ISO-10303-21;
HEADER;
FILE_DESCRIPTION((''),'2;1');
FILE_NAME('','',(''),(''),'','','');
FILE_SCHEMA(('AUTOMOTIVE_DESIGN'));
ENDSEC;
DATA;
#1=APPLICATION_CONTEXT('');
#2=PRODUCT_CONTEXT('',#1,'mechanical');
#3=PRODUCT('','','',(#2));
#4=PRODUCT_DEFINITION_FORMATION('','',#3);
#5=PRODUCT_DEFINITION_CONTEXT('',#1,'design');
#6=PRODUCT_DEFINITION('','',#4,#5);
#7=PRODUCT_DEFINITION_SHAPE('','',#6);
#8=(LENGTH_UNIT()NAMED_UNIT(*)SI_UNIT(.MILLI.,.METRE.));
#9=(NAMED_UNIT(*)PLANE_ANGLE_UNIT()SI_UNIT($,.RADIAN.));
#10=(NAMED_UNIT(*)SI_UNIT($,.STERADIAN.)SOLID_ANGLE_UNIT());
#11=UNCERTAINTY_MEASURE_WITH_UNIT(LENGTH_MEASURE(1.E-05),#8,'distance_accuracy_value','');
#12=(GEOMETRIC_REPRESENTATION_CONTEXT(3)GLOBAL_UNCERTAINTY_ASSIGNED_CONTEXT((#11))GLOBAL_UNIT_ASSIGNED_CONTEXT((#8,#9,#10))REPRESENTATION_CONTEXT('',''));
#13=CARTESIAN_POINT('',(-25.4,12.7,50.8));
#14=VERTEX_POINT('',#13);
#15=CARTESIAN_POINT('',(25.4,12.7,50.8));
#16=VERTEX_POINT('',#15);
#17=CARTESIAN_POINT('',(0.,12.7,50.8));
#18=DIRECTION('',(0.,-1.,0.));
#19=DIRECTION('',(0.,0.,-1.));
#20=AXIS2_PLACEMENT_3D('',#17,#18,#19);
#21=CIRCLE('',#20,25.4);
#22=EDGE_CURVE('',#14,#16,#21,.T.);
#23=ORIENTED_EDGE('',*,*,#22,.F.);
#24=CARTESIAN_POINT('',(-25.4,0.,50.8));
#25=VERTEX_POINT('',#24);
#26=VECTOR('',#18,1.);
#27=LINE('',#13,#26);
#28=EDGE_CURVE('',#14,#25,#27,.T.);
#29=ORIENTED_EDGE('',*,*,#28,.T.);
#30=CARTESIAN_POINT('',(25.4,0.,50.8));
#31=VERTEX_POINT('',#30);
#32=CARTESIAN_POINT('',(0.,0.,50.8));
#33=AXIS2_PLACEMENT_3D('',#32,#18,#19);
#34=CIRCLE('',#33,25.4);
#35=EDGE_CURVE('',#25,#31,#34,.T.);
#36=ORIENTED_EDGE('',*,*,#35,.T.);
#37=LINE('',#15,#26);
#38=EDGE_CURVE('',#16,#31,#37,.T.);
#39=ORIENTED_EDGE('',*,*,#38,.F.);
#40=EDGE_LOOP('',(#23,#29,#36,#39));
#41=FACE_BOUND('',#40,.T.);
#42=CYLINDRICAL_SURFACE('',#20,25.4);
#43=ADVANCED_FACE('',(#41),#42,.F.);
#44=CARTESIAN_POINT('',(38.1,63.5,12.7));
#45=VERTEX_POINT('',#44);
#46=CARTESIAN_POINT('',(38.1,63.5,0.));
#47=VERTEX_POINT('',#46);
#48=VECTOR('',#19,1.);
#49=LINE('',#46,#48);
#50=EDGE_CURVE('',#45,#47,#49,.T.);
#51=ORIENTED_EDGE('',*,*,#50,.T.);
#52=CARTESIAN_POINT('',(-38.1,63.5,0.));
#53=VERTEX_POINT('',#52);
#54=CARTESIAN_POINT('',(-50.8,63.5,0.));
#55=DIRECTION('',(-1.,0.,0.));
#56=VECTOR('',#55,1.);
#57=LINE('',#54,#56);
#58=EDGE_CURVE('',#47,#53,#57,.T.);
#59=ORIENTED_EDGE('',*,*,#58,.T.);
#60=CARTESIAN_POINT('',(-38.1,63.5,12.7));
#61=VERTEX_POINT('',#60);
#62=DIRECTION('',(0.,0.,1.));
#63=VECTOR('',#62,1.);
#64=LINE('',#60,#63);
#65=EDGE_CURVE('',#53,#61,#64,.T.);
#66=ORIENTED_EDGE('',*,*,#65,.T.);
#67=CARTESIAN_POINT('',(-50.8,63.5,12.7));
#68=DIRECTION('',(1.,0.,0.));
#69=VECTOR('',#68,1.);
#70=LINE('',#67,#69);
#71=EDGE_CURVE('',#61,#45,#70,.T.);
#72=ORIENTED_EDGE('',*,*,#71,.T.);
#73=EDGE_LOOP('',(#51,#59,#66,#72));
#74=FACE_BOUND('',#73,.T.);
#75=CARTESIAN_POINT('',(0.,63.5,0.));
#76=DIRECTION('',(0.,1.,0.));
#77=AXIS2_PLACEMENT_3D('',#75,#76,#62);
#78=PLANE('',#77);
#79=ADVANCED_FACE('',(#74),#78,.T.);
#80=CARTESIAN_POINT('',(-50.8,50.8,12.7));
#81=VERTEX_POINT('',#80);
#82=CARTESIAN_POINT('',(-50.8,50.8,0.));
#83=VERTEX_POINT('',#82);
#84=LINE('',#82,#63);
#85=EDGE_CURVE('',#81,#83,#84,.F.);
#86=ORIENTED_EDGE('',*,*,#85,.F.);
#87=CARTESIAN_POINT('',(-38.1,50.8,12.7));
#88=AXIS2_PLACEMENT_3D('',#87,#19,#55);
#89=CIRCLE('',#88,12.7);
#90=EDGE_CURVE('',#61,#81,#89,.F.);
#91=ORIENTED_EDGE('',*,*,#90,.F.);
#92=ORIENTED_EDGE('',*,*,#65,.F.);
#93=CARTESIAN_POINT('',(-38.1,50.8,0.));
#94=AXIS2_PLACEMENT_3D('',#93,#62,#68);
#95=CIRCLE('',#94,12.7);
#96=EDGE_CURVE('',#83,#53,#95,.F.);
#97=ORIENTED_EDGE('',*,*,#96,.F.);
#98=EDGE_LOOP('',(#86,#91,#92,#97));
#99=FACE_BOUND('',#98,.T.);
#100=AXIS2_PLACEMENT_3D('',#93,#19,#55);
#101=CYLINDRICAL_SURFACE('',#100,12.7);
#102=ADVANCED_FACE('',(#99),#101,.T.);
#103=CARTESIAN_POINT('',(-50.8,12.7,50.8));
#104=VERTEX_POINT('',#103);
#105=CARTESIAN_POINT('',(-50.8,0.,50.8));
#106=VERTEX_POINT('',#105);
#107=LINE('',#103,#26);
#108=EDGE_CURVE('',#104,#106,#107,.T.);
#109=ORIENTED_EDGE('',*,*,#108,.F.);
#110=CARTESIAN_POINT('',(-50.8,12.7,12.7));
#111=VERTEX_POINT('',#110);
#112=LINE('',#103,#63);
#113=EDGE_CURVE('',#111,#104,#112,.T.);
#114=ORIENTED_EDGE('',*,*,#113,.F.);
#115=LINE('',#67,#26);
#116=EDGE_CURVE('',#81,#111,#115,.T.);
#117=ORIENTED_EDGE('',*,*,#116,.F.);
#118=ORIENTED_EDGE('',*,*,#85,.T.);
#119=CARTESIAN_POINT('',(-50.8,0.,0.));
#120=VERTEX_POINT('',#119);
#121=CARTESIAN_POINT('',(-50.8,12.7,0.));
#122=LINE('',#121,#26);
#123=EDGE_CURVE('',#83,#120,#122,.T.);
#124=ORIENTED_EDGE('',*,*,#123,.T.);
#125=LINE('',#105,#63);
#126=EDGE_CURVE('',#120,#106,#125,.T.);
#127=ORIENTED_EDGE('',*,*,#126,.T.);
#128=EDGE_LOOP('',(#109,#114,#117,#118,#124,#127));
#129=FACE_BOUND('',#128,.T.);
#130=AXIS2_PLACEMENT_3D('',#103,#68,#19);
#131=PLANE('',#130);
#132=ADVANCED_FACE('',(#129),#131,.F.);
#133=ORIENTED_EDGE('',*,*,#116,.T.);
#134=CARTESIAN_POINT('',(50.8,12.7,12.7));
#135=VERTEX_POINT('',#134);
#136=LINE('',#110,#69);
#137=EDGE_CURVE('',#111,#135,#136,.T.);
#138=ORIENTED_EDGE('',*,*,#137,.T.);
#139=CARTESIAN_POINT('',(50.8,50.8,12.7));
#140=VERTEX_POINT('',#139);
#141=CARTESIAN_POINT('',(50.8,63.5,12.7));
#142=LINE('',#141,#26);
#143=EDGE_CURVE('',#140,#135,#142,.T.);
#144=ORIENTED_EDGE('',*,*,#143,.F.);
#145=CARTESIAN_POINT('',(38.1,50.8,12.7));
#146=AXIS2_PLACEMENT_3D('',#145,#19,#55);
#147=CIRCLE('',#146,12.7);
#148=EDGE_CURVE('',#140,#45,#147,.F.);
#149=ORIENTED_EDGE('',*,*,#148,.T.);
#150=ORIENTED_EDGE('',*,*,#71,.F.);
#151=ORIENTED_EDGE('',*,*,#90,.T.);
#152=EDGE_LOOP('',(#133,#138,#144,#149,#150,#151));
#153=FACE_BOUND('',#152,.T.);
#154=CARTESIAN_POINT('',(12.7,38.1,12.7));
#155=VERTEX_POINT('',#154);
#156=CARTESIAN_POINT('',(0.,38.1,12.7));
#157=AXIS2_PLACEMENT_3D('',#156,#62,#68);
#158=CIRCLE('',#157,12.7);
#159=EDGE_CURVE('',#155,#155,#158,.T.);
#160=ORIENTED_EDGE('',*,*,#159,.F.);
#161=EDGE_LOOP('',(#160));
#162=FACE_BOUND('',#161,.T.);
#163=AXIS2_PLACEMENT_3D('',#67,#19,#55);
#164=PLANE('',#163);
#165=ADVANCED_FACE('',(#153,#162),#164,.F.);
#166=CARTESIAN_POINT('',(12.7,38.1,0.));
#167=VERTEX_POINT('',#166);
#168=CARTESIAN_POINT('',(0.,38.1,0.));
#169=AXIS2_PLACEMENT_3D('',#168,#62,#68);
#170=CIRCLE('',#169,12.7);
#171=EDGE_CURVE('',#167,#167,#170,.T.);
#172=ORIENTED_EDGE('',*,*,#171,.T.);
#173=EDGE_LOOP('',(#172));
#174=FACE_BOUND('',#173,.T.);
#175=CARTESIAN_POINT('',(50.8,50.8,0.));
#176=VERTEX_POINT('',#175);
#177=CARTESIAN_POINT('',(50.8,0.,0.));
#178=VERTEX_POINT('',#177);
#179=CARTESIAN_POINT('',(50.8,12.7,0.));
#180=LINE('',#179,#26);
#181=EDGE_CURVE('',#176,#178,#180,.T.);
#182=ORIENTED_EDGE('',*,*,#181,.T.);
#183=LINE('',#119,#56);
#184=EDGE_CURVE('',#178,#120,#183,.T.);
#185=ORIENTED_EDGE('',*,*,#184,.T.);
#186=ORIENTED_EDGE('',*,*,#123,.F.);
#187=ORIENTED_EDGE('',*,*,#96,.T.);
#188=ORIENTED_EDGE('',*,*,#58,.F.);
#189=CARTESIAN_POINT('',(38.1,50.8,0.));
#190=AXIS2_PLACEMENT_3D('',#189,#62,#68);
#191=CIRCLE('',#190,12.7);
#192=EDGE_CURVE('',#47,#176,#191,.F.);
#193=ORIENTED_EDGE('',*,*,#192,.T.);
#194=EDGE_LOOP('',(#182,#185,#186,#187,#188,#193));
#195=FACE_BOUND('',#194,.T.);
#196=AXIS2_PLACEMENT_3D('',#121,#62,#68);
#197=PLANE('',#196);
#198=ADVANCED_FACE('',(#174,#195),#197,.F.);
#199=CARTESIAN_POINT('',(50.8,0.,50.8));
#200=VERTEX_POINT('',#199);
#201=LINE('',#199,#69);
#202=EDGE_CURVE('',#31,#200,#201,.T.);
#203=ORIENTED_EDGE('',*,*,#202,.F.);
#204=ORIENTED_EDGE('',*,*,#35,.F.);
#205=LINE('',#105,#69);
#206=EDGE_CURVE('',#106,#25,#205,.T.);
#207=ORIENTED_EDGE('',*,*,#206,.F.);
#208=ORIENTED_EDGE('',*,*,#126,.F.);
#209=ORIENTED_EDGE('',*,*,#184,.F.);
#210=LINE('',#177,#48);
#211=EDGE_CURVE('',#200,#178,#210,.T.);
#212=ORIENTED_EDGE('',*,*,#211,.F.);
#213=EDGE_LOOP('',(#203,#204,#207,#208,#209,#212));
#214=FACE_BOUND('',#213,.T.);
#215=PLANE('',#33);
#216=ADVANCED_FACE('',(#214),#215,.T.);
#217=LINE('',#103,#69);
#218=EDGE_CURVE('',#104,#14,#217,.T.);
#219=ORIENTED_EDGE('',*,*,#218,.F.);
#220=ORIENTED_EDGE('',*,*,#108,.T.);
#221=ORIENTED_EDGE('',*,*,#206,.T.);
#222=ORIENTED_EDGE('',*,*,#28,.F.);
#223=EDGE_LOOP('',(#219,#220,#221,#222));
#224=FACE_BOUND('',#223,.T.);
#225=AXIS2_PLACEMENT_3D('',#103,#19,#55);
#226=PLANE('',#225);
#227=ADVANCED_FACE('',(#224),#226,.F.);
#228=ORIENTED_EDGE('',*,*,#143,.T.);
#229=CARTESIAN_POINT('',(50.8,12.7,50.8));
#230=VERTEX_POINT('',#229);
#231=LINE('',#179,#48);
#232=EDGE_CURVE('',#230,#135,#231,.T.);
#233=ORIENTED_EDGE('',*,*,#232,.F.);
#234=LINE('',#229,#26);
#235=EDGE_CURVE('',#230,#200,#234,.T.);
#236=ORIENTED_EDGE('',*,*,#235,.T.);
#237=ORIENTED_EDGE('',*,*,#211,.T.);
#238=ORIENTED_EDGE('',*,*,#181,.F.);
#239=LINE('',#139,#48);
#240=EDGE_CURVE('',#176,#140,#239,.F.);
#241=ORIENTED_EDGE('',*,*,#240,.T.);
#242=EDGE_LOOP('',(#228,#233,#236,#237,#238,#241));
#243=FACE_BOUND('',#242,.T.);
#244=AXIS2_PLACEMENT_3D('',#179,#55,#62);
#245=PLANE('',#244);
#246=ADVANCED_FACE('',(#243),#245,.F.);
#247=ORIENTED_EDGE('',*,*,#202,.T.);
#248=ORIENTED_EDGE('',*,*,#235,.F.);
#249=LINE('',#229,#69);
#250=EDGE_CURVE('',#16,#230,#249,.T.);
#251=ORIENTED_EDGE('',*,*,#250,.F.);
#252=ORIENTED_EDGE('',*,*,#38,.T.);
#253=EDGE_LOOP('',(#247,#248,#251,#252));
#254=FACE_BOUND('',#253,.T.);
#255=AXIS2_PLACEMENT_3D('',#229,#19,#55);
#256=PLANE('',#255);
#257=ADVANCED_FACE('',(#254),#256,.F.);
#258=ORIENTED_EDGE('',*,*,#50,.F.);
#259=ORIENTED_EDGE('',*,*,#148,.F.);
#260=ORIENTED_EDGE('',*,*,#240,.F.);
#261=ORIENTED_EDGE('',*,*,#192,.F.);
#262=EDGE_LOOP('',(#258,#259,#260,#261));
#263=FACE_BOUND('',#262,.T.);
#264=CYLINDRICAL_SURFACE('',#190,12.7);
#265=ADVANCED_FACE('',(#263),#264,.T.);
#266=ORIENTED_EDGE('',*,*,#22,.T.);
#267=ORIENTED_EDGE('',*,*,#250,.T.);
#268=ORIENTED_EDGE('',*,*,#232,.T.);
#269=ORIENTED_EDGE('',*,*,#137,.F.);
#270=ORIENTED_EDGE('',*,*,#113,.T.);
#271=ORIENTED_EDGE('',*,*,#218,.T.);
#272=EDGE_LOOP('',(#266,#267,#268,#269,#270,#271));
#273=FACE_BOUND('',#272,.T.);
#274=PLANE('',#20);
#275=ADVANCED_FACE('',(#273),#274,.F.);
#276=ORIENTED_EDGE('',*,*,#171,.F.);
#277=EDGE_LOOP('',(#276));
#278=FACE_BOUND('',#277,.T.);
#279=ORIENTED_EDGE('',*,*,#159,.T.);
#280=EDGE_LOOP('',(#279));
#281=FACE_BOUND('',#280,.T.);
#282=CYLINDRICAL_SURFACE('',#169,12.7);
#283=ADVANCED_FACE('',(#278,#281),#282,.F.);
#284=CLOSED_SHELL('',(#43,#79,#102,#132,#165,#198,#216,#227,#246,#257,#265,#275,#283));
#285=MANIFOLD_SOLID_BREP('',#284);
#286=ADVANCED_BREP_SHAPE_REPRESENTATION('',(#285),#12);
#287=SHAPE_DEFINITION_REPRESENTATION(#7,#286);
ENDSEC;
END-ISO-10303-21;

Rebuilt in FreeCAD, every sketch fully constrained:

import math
import FreeCAD as App
import Part
import Sketcher
from FreeCAD import Vector
Q = App.Units.Quantity


def edges_at(feature, points):
    """Names of the edges that pass closest to the given points."""
    edges = feature.Shape.Edges
    near = lambda p: min(range(len(edges)), key=lambda i: edges[i].distToShape(Part.Vertex(*p))[0])
    return sorted({f"Edge{near(p) + 1}" for p in points})


def add_polygon(sketch, points):
    """Adds a closed chain of lines whose ends are joined by coincident constraints."""
    first, n = sketch.GeometryCount, len(points)
    for a, b in zip(points, points[1:] + points[:1]):
        sketch.addGeometry(Part.LineSegment(App.Vector(*a, 0), App.Vector(*b, 0)), False)
    for i in range(n):
        sketch.addConstraint(Sketcher.Constraint("Coincident", first + i, 2, first + (i + 1) % n, 1))

doc = App.newDocument("Part")
body = doc.addObject("PartDesign::Body", "Body")

# Sketch on XZ plane
sketch1 = doc.addObject("Sketcher::SketchObject", "Sketch")
body.addObject(sketch1)
sketch1.AttachmentSupport = (doc.XZ_Plane, [""])
sketch1.MapMode = "FlatFace"
sketch1.addGeometry(Part.LineSegment(Vector(-51, 0, 0), Vector(-51, 51, 0)), False)
sketch1.addGeometry(Part.LineSegment(Vector(-51, 51, 0), Vector(-25, 51, 0)), False)
sketch1.addGeometry(Part.ArcOfCircle(Part.Circle(Vector(0, 51, 0), Vector(0, 0, 1), 25), math.radians(180), math.radians(360)), False)
sketch1.addGeometry(Part.LineSegment(Vector(25, 51, 0), Vector(51, 51, 0)), False)
sketch1.addGeometry(Part.LineSegment(Vector(51, 51, 0), Vector(51, 0, 0)), False)
sketch1.addGeometry(Part.LineSegment(Vector(51, 0, 0), Vector(-51, 0, 0)), False)
sketch1.addConstraint(Sketcher.Constraint("Coincident", 0, 2, 1, 1))
sketch1.addConstraint(Sketcher.Constraint("Coincident", 1, 2, 2, 1))
sketch1.addConstraint(Sketcher.Constraint("Coincident", 2, 2, 3, 1))
sketch1.addConstraint(Sketcher.Constraint("Coincident", 3, 2, 4, 1))
sketch1.addConstraint(Sketcher.Constraint("Coincident", 4, 2, 5, 1))
sketch1.addConstraint(Sketcher.Constraint("Coincident", 5, 2, 0, 1))
sketch1.addConstraint(Sketcher.Constraint("Vertical", 0))
sketch1.addConstraint(Sketcher.Constraint("Horizontal", 1))
sketch1.addConstraint(Sketcher.Constraint("Horizontal", 3))
sketch1.addConstraint(Sketcher.Constraint("Vertical", 4))
sketch1.addConstraint(Sketcher.Constraint("Horizontal", 5))
sketch1.addConstraint(Sketcher.Constraint("Symmetric", 4, 2, 5, 2, -1, 1))
sketch1.addConstraint(Sketcher.Constraint("Symmetric", 1, 2, 2, 2, -2))
sketch1.addConstraint(Sketcher.Constraint("Horizontal", 2, 3, 0, 2))
sketch1.addConstraint(Sketcher.Constraint("Radius", 2, Q("1 in")))
sketch1.addConstraint(Sketcher.Constraint("DistanceX", 1, 1, 1, 2, Q("1 in")))
sketch1.addConstraint(Sketcher.Constraint("DistanceY", 0, 1, 0, 2, Q("2 in")))
pad1 = doc.addObject("PartDesign::Pad", "Pad")
body.addObject(pad1)
pad1.Profile = sketch1
pad1.Length = Q("0.5 in")
pad1.Reversed = True

# Sketch on XZ plane
sketch2 = doc.addObject("Sketcher::SketchObject", "Sketch001")
body.addObject(sketch2)
sketch2.AttachmentSupport = (doc.XZ_Plane, [""])
sketch2.MapMode = "FlatFace"
sketch2.AttachmentOffset = App.Placement(Vector(0, 0, -0.5 * 25.4), App.Rotation())
add_polygon(sketch2, [(-51, 0), (-51, 13), (51, 13), (51, 0)])  # lines 0-3
sketch2.addConstraint(Sketcher.Constraint("Vertical", 0))
sketch2.addConstraint(Sketcher.Constraint("Horizontal", 1))
sketch2.addConstraint(Sketcher.Constraint("Vertical", 2))
sketch2.addConstraint(Sketcher.Constraint("Horizontal", 3))
sketch2.addConstraint(Sketcher.Constraint("Symmetric", 2, 2, 3, 2, -1, 1))
sketch2.addConstraint(Sketcher.Constraint("DistanceX", 1, 1, 1, 2, Q("4 in")))
sketch2.addConstraint(Sketcher.Constraint("DistanceY", 0, 1, 0, 2, Q("0.5 in")))
pad2 = doc.addObject("PartDesign::Pad", "Pad001")
body.addObject(pad2)
pad2.Profile = sketch2
pad2.Length = Q("2 in")
pad2.Reversed = True

# Sketch on XY plane
sketch3 = doc.addObject("Sketcher::SketchObject", "Sketch002")
body.addObject(sketch3)
sketch3.AttachmentSupport = (doc.XY_Plane, [""])
sketch3.MapMode = "FlatFace"
sketch3.AttachmentOffset = App.Placement(Vector(0, 0, 0.5 * 25.4), App.Rotation())
sketch3.addGeometry(Part.Circle(Vector(0, 38, 0), Vector(0, 0, 1), 13), False)
sketch3.addConstraint(Sketcher.Constraint("PointOnObject", 0, 3, -2))
sketch3.addConstraint(Sketcher.Constraint("Diameter", 0, Q("1 in")))
sketch3.addConstraint(Sketcher.Constraint("DistanceY", -1, 1, 0, 3, Q("1.5 in")))
pocket1 = doc.addObject("PartDesign::Pocket", "Pocket")
body.addObject(pocket1)
pocket1.Profile = sketch3
pocket1.Type = "ThroughAll"
doc.recompute()

fillet = doc.addObject("PartDesign::Fillet", "Fillet")
body.addObject(fillet)
fillet.Base = (pocket1, edges_at(pocket1, [(-50.8, 63.5, 6.35), (50.8, 63.5, 6.35)]))
fillet.Radius = Q("0.5 in")

doc.recompute()
